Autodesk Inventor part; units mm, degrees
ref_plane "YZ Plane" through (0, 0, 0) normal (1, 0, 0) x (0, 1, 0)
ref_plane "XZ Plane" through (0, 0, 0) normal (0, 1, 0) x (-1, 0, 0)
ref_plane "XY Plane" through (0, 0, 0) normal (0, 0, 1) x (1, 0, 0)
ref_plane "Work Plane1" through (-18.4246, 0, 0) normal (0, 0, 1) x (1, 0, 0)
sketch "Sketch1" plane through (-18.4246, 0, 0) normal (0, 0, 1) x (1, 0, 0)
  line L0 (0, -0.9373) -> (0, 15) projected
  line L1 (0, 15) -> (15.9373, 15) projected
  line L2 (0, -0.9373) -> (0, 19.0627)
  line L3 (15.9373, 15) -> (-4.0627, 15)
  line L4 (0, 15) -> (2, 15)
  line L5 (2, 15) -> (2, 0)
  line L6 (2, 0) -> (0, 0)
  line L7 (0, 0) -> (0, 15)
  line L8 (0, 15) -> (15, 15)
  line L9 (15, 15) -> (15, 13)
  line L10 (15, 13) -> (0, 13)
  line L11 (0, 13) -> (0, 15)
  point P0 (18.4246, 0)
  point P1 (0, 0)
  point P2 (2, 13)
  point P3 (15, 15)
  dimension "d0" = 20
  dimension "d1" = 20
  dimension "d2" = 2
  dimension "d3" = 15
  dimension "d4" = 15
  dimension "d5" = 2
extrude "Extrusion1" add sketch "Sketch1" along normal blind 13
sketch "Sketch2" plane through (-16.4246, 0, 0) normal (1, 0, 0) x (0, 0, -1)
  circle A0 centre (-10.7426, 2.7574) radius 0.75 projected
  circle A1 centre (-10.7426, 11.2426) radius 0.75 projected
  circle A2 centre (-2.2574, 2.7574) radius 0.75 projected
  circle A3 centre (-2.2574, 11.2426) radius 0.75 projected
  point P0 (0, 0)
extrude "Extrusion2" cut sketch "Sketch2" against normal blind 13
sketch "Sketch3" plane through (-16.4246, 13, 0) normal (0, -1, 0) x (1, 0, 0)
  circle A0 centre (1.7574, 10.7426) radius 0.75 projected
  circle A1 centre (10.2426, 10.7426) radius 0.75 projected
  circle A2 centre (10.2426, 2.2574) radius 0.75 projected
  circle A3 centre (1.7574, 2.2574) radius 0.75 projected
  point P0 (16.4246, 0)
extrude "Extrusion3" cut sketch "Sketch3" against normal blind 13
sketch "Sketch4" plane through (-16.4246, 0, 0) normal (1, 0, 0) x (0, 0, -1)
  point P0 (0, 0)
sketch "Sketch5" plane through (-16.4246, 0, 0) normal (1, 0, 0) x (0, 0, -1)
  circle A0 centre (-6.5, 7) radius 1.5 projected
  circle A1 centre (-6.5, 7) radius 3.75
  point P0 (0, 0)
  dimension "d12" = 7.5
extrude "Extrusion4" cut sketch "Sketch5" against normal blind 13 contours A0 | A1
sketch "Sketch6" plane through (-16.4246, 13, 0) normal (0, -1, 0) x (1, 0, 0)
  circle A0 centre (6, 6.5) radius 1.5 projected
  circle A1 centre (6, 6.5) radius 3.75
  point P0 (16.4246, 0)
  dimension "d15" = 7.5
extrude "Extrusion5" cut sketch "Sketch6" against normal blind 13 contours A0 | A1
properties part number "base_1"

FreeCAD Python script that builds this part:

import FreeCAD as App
import Part
import Sketcher
from FreeCAD import Vector


def add_polygon(sketch, points):
    """Adds a closed chain of lines whose ends are joined by coincident constraints."""
    first, n = sketch.GeometryCount, len(points)
    for a, b in zip(points, points[1:] + points[:1]):
        sketch.addGeometry(Part.LineSegment(App.Vector(*a, 0), App.Vector(*b, 0)), False)
    for i in range(n):
        sketch.addConstraint(Sketcher.Constraint("Coincident", first + i, 2, first + (i + 1) % n, 1))

doc = App.newDocument("Part")
body = doc.addObject("PartDesign::Body", "Body")

sketch1 = body.newObject("Sketcher::SketchObject", "Sketch")
sketch1.AttachmentSupport = (doc.getObject("XY_Plane"), [""])
sketch1.MapMode = "FlatFace"
add_polygon(sketch1, [(-18.4246, 0), (-16.4246, 0), (-16.4246, 13), (-3.4246, 13), (-3.4246, 15), (-18.4246, 15)])
sketch1.addConstraint(Sketcher.Constraint("Horizontal", 0))
sketch1.addConstraint(Sketcher.Constraint("Vertical", 1))
sketch1.addConstraint(Sketcher.Constraint("Horizontal", 2))
sketch1.addConstraint(Sketcher.Constraint("Vertical", 3))
sketch1.addConstraint(Sketcher.Constraint("Horizontal", 4))
sketch1.addConstraint(Sketcher.Constraint("Vertical", 5))
sketch1.addConstraint(Sketcher.Constraint("PointOnObject", 0, 2, -1))
sketch1.addConstraint(Sketcher.Constraint("Equal", 2, 1))
sketch1.addConstraint(Sketcher.Constraint("Equal", 0, 3))
sketch1.addConstraint(Sketcher.Constraint("DistanceX", 0, 1, 0, 2, 2.0))
sketch1.addConstraint(Sketcher.Constraint("DistanceX", 4, 2, 4, 1, 15.0))
sketch1.addConstraint(Sketcher.Constraint("DistanceX", 0, 2, -1, 1, 16.4246))
pad1 = body.newObject("PartDesign::Pad", "Pad")
pad1.Profile = sketch1
pad1.Length = 13

sketch2 = body.newObject("Sketcher::SketchObject", "Sketch001")
sketch2.AttachmentSupport = (doc.getObject("YZ_Plane"), [""])
sketch2.MapMode = "FlatFace"
sketch2.AttachmentOffset = App.Placement(Vector(0, 0, -16.4246), App.Rotation())
sketch2.addGeometry(Part.Circle(Vector(2.7574, 10.7426, 0), Vector(0, 0, 1), 0.75), False)
sketch2.addGeometry(Part.Circle(Vector(11.2426, 10.7426, 0), Vector(0, 0, 1), 0.75), False)
sketch2.addGeometry(Part.Circle(Vector(2.7574, 2.2574, 0), Vector(0, 0, 1), 0.75), False)
sketch2.addGeometry(Part.Circle(Vector(11.2426, 2.2574, 0), Vector(0, 0, 1), 0.75), False)
sketch2.addConstraint(Sketcher.Constraint("Equal", 0, 1))
sketch2.addConstraint(Sketcher.Constraint("Equal", 1, 2))
sketch2.addConstraint(Sketcher.Constraint("Equal", 2, 3))
sketch2.addConstraint(Sketcher.Constraint("Horizontal", 0, 3, 1, 3))
sketch2.addConstraint(Sketcher.Constraint("Horizontal", 2, 3, 3, 3))
sketch2.addConstraint(Sketcher.Constraint("Vertical", 0, 3, 2, 3))
sketch2.addConstraint(Sketcher.Constraint("Vertical", 1, 3, 3, 3))
sketch2.addConstraint(Sketcher.Constraint("Diameter", 0, 1.5))
sketch2.addConstraint(Sketcher.Constraint("DistanceX", -1, 1, 0, 3, 2.7574))
sketch2.addConstraint(Sketcher.Constraint("DistanceY", -1, 1, 0, 3, 10.7426))
sketch2.addConstraint(Sketcher.Constraint("DistanceX", -1, 1, 1, 3, 11.2426))
sketch2.addConstraint(Sketcher.Constraint("DistanceY", -1, 1, 2, 3, 2.2574))
pocket1 = body.newObject("PartDesign::Pocket", "Pocket")
pocket1.Profile = sketch2
pocket1.Length = 13

sketch3 = body.newObject("Sketcher::SketchObject", "Sketch002")
sketch3.AttachmentSupport = (doc.getObject("XZ_Plane"), [""])
sketch3.MapMode = "FlatFace"
sketch3.AttachmentOffset = App.Placement(Vector(0, 0, -13), App.Rotation())
sketch3.addGeometry(Part.Circle(Vector(-14.6672, 10.7426, 0), Vector(0, 0, 1), 0.75), False)
sketch3.addGeometry(Part.Circle(Vector(-6.182, 10.7426, 0), Vector(0, 0, 1), 0.75), False)
sketch3.addGeometry(Part.Circle(Vector(-6.182, 2.2574, 0), Vector(0, 0, 1), 0.75), False)
sketch3.addGeometry(Part.Circle(Vector(-14.6672, 2.2574, 0), Vector(0, 0, 1), 0.75), False)
sketch3.addConstraint(Sketcher.Constraint("Equal", 0, 1))
sketch3.addConstraint(Sketcher.Constraint("Equal", 1, 2))
sketch3.addConstraint(Sketcher.Constraint("Equal", 2, 3))
sketch3.addConstraint(Sketcher.Constraint("Horizontal", 0, 3, 1, 3))
sketch3.addConstraint(Sketcher.Constraint("Horizontal", 2, 3, 3, 3))
sketch3.addConstraint(Sketcher.Constraint("Vertical", 1, 3, 2, 3))
sketch3.addConstraint(Sketcher.Constraint("Vertical", 0, 3, 3, 3))
sketch3.addConstraint(Sketcher.Constraint("Diameter", 0, 1.5))
sketch3.addConstraint(Sketcher.Constraint("DistanceX", 1, 3, -1, 1, 6.182))
sketch3.addConstraint(Sketcher.Constraint("DistanceX", 0, 3, -1, 1, 14.6672))
sketch3.addConstraint(Sketcher.Constraint("DistanceY", -1, 1, 0, 3, 10.7426))
sketch3.addConstraint(Sketcher.Constraint("DistanceY", -1, 1, 2, 3, 2.2574))
pocket2 = body.newObject("PartDesign::Pocket", "Pocket001")
pocket2.Profile = sketch3
pocket2.Length = 13

sketch4 = body.newObject("Sketcher::SketchObject", "Sketch003")
sketch4.AttachmentSupport = (doc.getObject("YZ_Plane"), [""])
sketch4.MapMode = "FlatFace"
sketch4.AttachmentOffset = App.Placement(Vector(0, 0, -16.4246), App.Rotation())
sketch4.addGeometry(Part.Circle(Vector(7, 6.5, 0), Vector(0, 0, 1), 3.75), False)
sketch4.addConstraint(Sketcher.Constraint("Diameter", 0, 7.5))
sketch4.addConstraint(Sketcher.Constraint("DistanceX", -1, 1, 0, 3, 7.0))
sketch4.addConstraint(Sketcher.Constraint("DistanceY", -1, 1, 0, 3, 6.5))
pocket3 = body.newObject("PartDesign::Pocket", "Pocket002")
pocket3.Profile = sketch4
pocket3.Length = 13

sketch5 = body.newObject("Sketcher::SketchObject", "Sketch004")
sketch5.AttachmentSupport = (doc.getObject("XZ_Plane"), [""])
sketch5.MapMode = "FlatFace"
sketch5.AttachmentOffset = App.Placement(Vector(0, 0, -13), App.Rotation())
sketch5.addGeometry(Part.Circle(Vector(-10.4246, 6.5, 0), Vector(0, 0, 1), 3.75), False)
sketch5.addConstraint(Sketcher.Constraint("Diameter", 0, 7.5))
sketch5.addConstraint(Sketcher.Constraint("DistanceY", -1, 1, 0, 3, 6.5))
sketch5.addConstraint(Sketcher.Constraint("DistanceX", 0, 3, -1, 1, 10.4246))
pocket4 = body.newObject("PartDesign::Pocket", "Pocket003")
pocket4.Profile = sketch5
pocket4.Length = 13

doc.recompute()
